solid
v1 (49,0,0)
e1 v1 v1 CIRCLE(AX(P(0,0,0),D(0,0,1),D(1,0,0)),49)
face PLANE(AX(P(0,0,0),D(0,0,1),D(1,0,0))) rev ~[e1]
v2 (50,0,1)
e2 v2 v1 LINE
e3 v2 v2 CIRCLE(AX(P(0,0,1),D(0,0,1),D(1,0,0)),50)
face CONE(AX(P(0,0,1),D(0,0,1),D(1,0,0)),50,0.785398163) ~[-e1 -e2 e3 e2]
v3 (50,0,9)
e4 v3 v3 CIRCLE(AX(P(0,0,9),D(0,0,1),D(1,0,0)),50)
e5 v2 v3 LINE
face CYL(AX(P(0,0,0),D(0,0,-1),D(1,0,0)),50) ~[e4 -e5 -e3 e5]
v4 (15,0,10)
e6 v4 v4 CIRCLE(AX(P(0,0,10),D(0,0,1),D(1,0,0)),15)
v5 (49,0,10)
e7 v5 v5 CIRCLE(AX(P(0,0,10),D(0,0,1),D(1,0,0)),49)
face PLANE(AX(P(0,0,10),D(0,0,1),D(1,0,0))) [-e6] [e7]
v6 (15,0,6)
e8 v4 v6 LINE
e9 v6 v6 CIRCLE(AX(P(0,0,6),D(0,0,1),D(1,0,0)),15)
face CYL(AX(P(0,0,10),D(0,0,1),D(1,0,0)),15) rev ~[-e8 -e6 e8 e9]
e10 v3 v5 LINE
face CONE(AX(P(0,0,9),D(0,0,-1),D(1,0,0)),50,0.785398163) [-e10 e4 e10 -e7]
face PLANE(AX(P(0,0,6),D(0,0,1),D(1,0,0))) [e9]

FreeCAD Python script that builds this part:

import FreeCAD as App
import Part
import Sketcher
Q = App.Units.Quantity


def edges_at(feature, points):
    """Names of the edges that pass closest to the given points."""
    edges = feature.Shape.Edges
    near = lambda p: min(range(len(edges)), key=lambda i: edges[i].distToShape(Part.Vertex(*p))[0])
    return sorted({f"Edge{near(p) + 1}" for p in points})

doc = App.newDocument("Part")
params = doc.addObject("Spreadsheet::Sheet", "Params")
for row, (alias, value) in enumerate([
    ("sketch1_diameter", "100 mm"),
    ("pad1_length", "10 mm"),
    ("sketch2_diameter", "30 mm"),
    ("pocket1_length", "4 mm"),
    ("chamfer_size", "1 mm"),
], start=1):
    params.set(f"A{row}", alias)
    params.set(f"B{row}", "=" + value)
    params.setAlias(f"B{row}", alias)

body = doc.addObject("PartDesign::Body", "Body")

# Sketch on XY plane
sketch1 = body.newObject("Sketcher::SketchObject", "Sketch")
sketch1.AttachmentSupport = (doc.getObject("XY_Plane"), [""])
sketch1.MapMode = "FlatFace"
sketch1.addGeometry(Part.Circle(App.Vector(0, 0, 0), App.Vector(0, 0, 1), 50), False)
sketch1.addConstraint([
    Sketcher.Constraint("Coincident", 0, 3, -1, 1),
    Sketcher.Constraint("Diameter", 0, Q("100 mm")),
])
sketch1.setExpression("Constraints[1]", "Params.sketch1_diameter")
pad1 = body.newObject("PartDesign::Pad", "Pad")
pad1.Profile = sketch1
pad1.setExpression("Length", "Params.pad1_length")

# Sketch on XY plane
sketch2 = body.newObject("Sketcher::SketchObject", "Sketch001")
sketch2.AttachmentSupport = (doc.getObject("XY_Plane"), [""])
sketch2.MapMode = "FlatFace"
sketch2.AttachmentOffset = App.Placement(App.Vector(0, 0, 10), App.Rotation())
sketch2.addGeometry(Part.Circle(App.Vector(0, 0, 0), App.Vector(0, 0, 1), 15), False)
sketch2.addConstraint([
    Sketcher.Constraint("Coincident", 0, 3, -1, 1),
    Sketcher.Constraint("Diameter", 0, Q("30 mm")),
])
sketch2.setExpression("Constraints[1]", "Params.sketch2_diameter")
pocket1 = body.newObject("PartDesign::Pocket", "Pocket")
pocket1.Profile = sketch2
pocket1.setExpression("Length", "Params.pocket1_length")
doc.recompute()

chamfer = body.newObject("PartDesign::Chamfer", "Chamfer")
chamfer.Base = (pocket1, edges_at(pocket1, [(-50, 0, 10), (-50, 0, 0)]))
chamfer.setExpression("Size", "Params.chamfer_size")

doc.recompute()
